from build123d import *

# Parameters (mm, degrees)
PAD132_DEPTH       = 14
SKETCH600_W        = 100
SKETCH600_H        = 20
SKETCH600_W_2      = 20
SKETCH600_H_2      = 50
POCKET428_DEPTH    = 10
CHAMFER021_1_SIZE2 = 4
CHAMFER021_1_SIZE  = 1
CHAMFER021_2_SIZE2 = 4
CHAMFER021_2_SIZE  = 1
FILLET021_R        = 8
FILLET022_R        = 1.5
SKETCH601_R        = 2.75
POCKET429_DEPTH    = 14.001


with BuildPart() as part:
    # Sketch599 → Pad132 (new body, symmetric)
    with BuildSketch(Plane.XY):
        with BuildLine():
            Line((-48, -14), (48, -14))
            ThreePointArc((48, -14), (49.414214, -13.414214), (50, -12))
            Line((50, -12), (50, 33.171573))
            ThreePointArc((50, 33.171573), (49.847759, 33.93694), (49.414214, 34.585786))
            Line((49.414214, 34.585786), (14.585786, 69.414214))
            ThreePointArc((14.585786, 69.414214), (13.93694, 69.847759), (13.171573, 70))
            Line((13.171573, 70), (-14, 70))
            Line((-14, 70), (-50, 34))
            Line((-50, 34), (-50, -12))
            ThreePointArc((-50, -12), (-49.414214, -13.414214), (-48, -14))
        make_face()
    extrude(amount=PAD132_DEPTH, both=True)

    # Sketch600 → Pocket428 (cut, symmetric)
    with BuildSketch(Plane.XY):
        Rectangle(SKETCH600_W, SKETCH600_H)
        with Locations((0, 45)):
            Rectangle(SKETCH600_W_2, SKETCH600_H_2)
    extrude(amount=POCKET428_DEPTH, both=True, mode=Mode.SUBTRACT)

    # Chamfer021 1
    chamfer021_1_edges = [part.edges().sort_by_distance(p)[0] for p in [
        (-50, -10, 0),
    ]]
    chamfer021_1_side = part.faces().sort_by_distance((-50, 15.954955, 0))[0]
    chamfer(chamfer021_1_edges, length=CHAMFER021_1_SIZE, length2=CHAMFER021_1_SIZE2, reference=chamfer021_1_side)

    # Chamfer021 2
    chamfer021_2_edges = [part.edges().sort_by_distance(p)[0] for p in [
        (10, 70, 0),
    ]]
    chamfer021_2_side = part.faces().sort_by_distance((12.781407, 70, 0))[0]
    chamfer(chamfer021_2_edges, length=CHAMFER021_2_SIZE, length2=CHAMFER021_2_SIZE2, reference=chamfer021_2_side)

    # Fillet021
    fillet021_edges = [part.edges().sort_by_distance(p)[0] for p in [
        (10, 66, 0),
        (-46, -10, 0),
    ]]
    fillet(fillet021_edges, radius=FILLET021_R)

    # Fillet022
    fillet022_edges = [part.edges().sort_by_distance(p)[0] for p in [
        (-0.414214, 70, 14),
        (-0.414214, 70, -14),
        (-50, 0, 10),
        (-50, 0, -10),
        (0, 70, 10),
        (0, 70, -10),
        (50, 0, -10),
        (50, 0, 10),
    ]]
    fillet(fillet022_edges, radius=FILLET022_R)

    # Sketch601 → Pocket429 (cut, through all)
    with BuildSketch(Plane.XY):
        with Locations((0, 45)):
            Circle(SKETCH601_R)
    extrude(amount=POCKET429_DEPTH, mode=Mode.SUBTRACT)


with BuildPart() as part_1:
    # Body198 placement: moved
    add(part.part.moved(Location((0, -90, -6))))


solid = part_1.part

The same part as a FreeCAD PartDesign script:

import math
import FreeCAD as App
import Part
import Sketcher

V = App.Vector
Q = App.Units.Quantity


def edges_at(feature, points):
    """Names of the edges that pass closest to the given points."""
    edges = feature.Shape.Edges
    near = lambda p: min(range(len(edges)), key=lambda i: edges[i].distToShape(Part.Vertex(*p))[0])
    return sorted({f"Edge{near(p) + 1}" for p in points})

doc = App.newDocument("Part")
body = doc.addObject("PartDesign::Body", "Body")

# Sketch on XY plane
sketch1 = body.newObject("Sketcher::SketchObject", "Sketch")
sketch1.AttachmentSupport = (doc.getObject("XY_Plane"), [""])
sketch1.MapMode = "FlatFace"
sketch1.addGeometry([
    Part.LineSegment(V(-48, -14, 0), V(48, -14, 0)),  # 0
    Part.ArcOfCircle(Part.Circle(V(48.000001, -12.000001, 0), V(0, 0, 1), 1.999999), math.radians(-90.000043), math.radians(0.000043)),  # 1
    Part.LineSegment(V(50, -12, 0), V(50, 33.171573, 0)),  # 2
    Part.ArcOfCircle(Part.Circle(V(48, 33.171573, 0), V(0, 0, 1), 2), math.radians(-0.000002), math.radians(44.999988)),  # 3
    Part.LineSegment(V(49.414214, 34.585786, 0), V(14.585786, 69.414214, 0)),  # 4
    Part.ArcOfCircle(Part.Circle(V(13.171573, 68, 0), V(0, 0, 1), 2), math.radians(45.000012), math.radians(90.000002)),  # 5
    Part.LineSegment(V(13.171573, 70, 0), V(-14, 70, 0)),  # 6
    Part.LineSegment(V(-14, 70, 0), V(-50, 34, 0)),  # 7
    Part.LineSegment(V(-50, 34, 0), V(-50, -12, 0)),  # 8
    Part.ArcOfCircle(Part.Circle(V(-48.000001, -12.000001, 0), V(0, 0, 1), 1.999999), math.radians(179.999957), math.radians(270.000043)),  # 9
], False)
sketch1.addConstraint([
    Sketcher.Constraint("Tangent", 0, 2, 1, 1),
    Sketcher.Constraint("Tangent", 1, 2, 2, 1),
    Sketcher.Constraint("Tangent", 2, 2, 3, 1),
    Sketcher.Constraint("Tangent", 3, 2, 4, 1),
    Sketcher.Constraint("Tangent", 4, 2, 5, 1),
    Sketcher.Constraint("Tangent", 5, 2, 6, 1),
    Sketcher.Constraint("Coincident", 6, 2, 7, 1),
    Sketcher.Constraint("Coincident", 7, 2, 8, 1),
    Sketcher.Constraint("Tangent", 8, 2, 9, 1),
    Sketcher.Constraint("Tangent", 9, 2, 0, 1),
    Sketcher.Constraint("Horizontal", 0),
    Sketcher.Constraint("Vertical", 2),
    Sketcher.Constraint("Horizontal", 6),
    Sketcher.Constraint("Vertical", 8),
    Sketcher.Constraint("Equal", 1, 3),
    Sketcher.Constraint("Equal", 3, 5),
    Sketcher.Constraint("Equal", 5, 9),
    Sketcher.Constraint("Perpendicular", 4, 7),
    Sketcher.Constraint("Radius", 1, 1.999999),
    Sketcher.Constraint("DistanceX", 0, 1, 0, 2, 96.0),
    Sketcher.Constraint("DistanceY", 8, 2, 8, 1, 46.0),
    Sketcher.Constraint("Angle", 4, Q("135 deg")),
    Sketcher.Constraint("DistanceX", -1, 1, 1, 3, 48.000001),
    Sketcher.Constraint("DistanceY", 1, 3, -1, 1, 12.000001),
    Sketcher.Constraint("DistanceY", -1, 1, 5, 3, 68.0),
    Sketcher.Constraint("DistanceX", 6, 2, 6, 1, 27.171573),
])
pad1 = body.newObject("PartDesign::Pad", "Pad")
pad1.Profile = sketch1
pad1.Length = 28
pad1.Midplane = True

# Sketch on XY plane
sketch2 = body.newObject("Sketcher::SketchObject", "Sketch001")
sketch2.AttachmentSupport = (doc.getObject("XY_Plane"), [""])
sketch2.MapMode = "FlatFace"
sketch2.addGeometry([
    Part.LineSegment(V(-50, 10, 0), V(-50, -10, 0)),  # 0
    Part.LineSegment(V(-50, -10, 0), V(50, -10, 0)),  # 1
    Part.LineSegment(V(50, -10, 0), V(50, 10, 0)),  # 2
    Part.LineSegment(V(50, 10, 0), V(-50, 10, 0)),  # 3
    Part.LineSegment(V(-10, 70, 0), V(-10, 20, 0)),  # 4
    Part.LineSegment(V(-10, 20, 0), V(10, 20, 0)),  # 5
    Part.LineSegment(V(10, 20, 0), V(10, 70, 0)),  # 6
    Part.LineSegment(V(10, 70, 0), V(-10, 70, 0)),  # 7
], False)
sketch2.addConstraint([
    Sketcher.Constraint("Coincident", 0, 2, 1, 1),
    Sketcher.Constraint("Coincident", 1, 2, 2, 1),
    Sketcher.Constraint("Coincident", 2, 2, 3, 1),
    Sketcher.Constraint("Coincident", 3, 2, 0, 1),
    Sketcher.Constraint("Coincident", 4, 2, 5, 1),
    Sketcher.Constraint("Coincident", 5, 2, 6, 1),
    Sketcher.Constraint("Coincident", 6, 2, 7, 1),
    Sketcher.Constraint("Coincident", 7, 2, 4, 1),
    Sketcher.Constraint("Vertical", 0),
    Sketcher.Constraint("Horizontal", 1),
    Sketcher.Constraint("Vertical", 2),
    Sketcher.Constraint("Horizontal", 3),
    Sketcher.Constraint("Vertical", 4),
    Sketcher.Constraint("Horizontal", 5),
    Sketcher.Constraint("Vertical", 6),
    Sketcher.Constraint("Horizontal", 7),
    Sketcher.Constraint("Symmetric", 0, 2, 2, 2, -1, 1),
    Sketcher.Constraint("Equal", 7, 0),
    Sketcher.Constraint("DistanceX", 1, 1, 1, 2, 100.0),
    Sketcher.Constraint("DistanceX", 5, 1, 5, 2, 20.0),
    Sketcher.Constraint("DistanceY", 4, 2, 4, 1, 50.0),
    Sketcher.Constraint("DistanceX", 4, 2, -1, 1, 10.0),
    Sketcher.Constraint("DistanceY", -1, 1, 4, 2, 20.0),
])
pocket1 = body.newObject("PartDesign::Pocket", "Pocket")
pocket1.Profile = sketch2
pocket1.Length = 20
pocket1.Midplane = True
doc.recompute()

chamfer = body.newObject("PartDesign::Chamfer", "Chamfer")
chamfer.Base = (pocket1, edges_at(pocket1, [(-50, -10, 0)]))
chamfer.ChamferType = "Two distances"
chamfer.Size = 1
chamfer.Size2 = 4
doc.recompute()

chamfer2 = body.newObject("PartDesign::Chamfer", "Chamfer001")
chamfer2.Base = (chamfer, edges_at(chamfer, [(10, 70, 0)]))
chamfer2.ChamferType = "Two distances"
chamfer2.Size = 1
chamfer2.Size2 = 4
doc.recompute()

fillet = body.newObject("PartDesign::Fillet", "Fillet")
fillet.Base = (chamfer2, edges_at(chamfer2, [(10, 66, 0), (-46, -10, 0)]))
fillet.Radius = 8
doc.recompute()

fillet2 = body.newObject("PartDesign::Fillet", "Fillet001")
fillet2.Base = (fillet, edges_at(fillet, [
    (-0.414, 70, 14),
    (-0.414, 70, -14),
    (-50, -0.5, 10),
    (-50, -0.5, -10),
    (0.5, 70, 10),
    (0.5, 70, -10),
    (50, 0, -10),
    (50, 0, 10),
]))
fillet2.Radius = 1.5

# Sketch on XY plane
sketch3 = body.newObject("Sketcher::SketchObject", "Sketch002")
sketch3.AttachmentSupport = (doc.getObject("XY_Plane"), [""])
sketch3.MapMode = "FlatFace"
sketch3.addGeometry(Part.Circle(V(0, 45, 0), V(0, 0, 1), 2.75), False)
sketch3.addConstraint([
    Sketcher.Constraint("PointOnObject", 0, 3, -2),
    Sketcher.Constraint("Diameter", 0, 5.5),
    Sketcher.Constraint("DistanceY", -1, 1, 0, 3, 45.0),
])
pocket2 = body.newObject("PartDesign::Pocket", "Pocket001")
pocket2.Profile = sketch3
pocket2.Type = "ThroughAll"
pocket2.Reversed = True
body2 = doc.addObject("PartDesign::Body", "Body001")
doc.recompute()

body.Placement = App.Placement(V(0, -90, -6), App.Rotation(V(0, 0, 1), 0))
boolean = body2.newObject("PartDesign::Boolean", "Boolean")
boolean.Type = "Fuse"
boolean.addObjects([body])

doc.recompute()
